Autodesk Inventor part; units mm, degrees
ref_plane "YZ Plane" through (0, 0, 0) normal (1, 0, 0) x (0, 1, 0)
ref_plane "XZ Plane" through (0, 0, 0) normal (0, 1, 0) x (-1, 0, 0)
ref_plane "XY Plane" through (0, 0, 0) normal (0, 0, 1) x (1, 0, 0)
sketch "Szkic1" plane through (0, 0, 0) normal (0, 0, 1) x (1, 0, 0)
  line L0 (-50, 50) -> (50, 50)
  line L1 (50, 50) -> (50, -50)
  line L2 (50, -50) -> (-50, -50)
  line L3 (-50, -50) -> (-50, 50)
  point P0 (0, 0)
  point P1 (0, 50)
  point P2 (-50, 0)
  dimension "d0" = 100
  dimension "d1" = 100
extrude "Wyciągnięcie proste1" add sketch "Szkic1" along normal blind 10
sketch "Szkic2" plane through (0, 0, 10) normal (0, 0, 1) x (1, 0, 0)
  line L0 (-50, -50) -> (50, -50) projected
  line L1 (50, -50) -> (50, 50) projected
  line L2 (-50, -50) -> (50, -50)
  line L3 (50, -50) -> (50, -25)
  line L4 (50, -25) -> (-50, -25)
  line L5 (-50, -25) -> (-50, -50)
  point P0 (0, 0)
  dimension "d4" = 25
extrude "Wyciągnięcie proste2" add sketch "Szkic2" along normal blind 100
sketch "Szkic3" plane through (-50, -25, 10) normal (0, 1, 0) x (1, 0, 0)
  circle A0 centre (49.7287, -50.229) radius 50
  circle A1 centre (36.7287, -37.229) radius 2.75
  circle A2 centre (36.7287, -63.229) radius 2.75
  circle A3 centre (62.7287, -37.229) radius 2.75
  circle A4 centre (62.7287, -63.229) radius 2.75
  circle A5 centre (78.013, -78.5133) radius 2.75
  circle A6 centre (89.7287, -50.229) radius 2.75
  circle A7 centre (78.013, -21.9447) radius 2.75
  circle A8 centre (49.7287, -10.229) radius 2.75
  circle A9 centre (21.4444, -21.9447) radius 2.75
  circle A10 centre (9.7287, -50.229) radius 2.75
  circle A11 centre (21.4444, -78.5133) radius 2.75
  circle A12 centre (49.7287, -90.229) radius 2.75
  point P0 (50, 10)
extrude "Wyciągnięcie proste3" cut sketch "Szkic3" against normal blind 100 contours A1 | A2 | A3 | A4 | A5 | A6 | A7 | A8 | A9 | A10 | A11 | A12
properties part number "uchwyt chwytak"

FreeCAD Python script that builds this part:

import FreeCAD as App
import Part
import Sketcher
Q = App.Units.Quantity

doc = App.newDocument("Part")
params = doc.addObject("Spreadsheet::Sheet", "Params")
for row, (alias, value) in enumerate([
    ("sketch1_width", "100 mm"),
    ("pad1_length", "10 mm"),
    ("sketch2_height", "25 mm"),
    ("sketch2_width", "100 mm"),
    ("pad2_length", "100 mm"),
    ("sketch3_diameter", "5.5 mm"),
    ("pocket1_length", "100 mm"),
], start=1):
    params.set(f"A{row}", alias)
    params.set(f"B{row}", "=" + value)
    params.setAlias(f"B{row}", alias)

body = doc.addObject("PartDesign::Body", "Body")

# Sketch on XY plane
sketch1 = body.newObject("Sketcher::SketchObject", "Sketch")
sketch1.AttachmentSupport = (doc.getObject("XY_Plane"), [""])
sketch1.MapMode = "FlatFace"
sketch1.addGeometry([
    Part.LineSegment(App.Vector(50, 50, 0), App.Vector(-50, 50, 0)),
    Part.LineSegment(App.Vector(-50, 50, 0), App.Vector(-50, -50, 0)),
    Part.LineSegment(App.Vector(-50, -50, 0), App.Vector(50, -50, 0)),
    Part.LineSegment(App.Vector(50, -50, 0), App.Vector(50, 50, 0)),
], False)
sketch1.addConstraint([
    Sketcher.Constraint("Coincident", 0, 2, 1, 1),
    Sketcher.Constraint("Coincident", 1, 2, 2, 1),
    Sketcher.Constraint("Coincident", 2, 2, 3, 1),
    Sketcher.Constraint("Coincident", 3, 2, 0, 1),
    Sketcher.Constraint("Horizontal", 0),
    Sketcher.Constraint("Vertical", 1),
    Sketcher.Constraint("Horizontal", 2),
    Sketcher.Constraint("Vertical", 3),
    Sketcher.Constraint("Symmetric", 0, 2, 2, 2, -1, 1),
    Sketcher.Constraint("Equal", 2, 1),
    Sketcher.Constraint("DistanceX", 0, 2, 0, 1, Q("100 mm")),
])
sketch1.setExpression("Constraints[10]", "Params.sketch1_width")
pad1 = body.newObject("PartDesign::Pad", "Pad")
pad1.Profile = sketch1
pad1.setExpression("Length", "Params.pad1_length")

# Sketch on XY plane
sketch2 = body.newObject("Sketcher::SketchObject", "Sketch001")
sketch2.AttachmentSupport = (doc.getObject("XY_Plane"), [""])
sketch2.MapMode = "FlatFace"
sketch2.AttachmentOffset = App.Placement(App.Vector(0, 0, 10), App.Rotation())
sketch2.addGeometry([
    Part.LineSegment(App.Vector(-50, -25, 0), App.Vector(-50, -50, 0)),
    Part.LineSegment(App.Vector(-50, -50, 0), App.Vector(50, -50, 0)),
    Part.LineSegment(App.Vector(50, -50, 0), App.Vector(50, -25, 0)),
    Part.LineSegment(App.Vector(50, -25, 0), App.Vector(-50, -25, 0)),
], False)
sketch2.addConstraint([
    Sketcher.Constraint("Coincident", 0, 2, 1, 1),
    Sketcher.Constraint("Coincident", 1, 2, 2, 1),
    Sketcher.Constraint("Coincident", 2, 2, 3, 1),
    Sketcher.Constraint("Coincident", 3, 2, 0, 1),
    Sketcher.Constraint("Vertical", 0),
    Sketcher.Constraint("Horizontal", 1),
    Sketcher.Constraint("Vertical", 2),
    Sketcher.Constraint("Horizontal", 3),
    Sketcher.Constraint("DistanceY", 0, 2, 0, 1, Q("25 mm")),
    Sketcher.Constraint("DistanceY", 2, 2, -1, 1, Q("25 mm")),
    Sketcher.Constraint("DistanceX", 1, 1, 1, 2, Q("100 mm")),
    Sketcher.Constraint("DistanceX", 0, 2, -1, 1, Q("50 mm")),
])
sketch2.setExpression("Constraints[8]", "Params.sketch2_height")
sketch2.setExpression("Constraints[10]", "Params.sketch2_width")
pad2 = body.newObject("PartDesign::Pad", "Pad001")
pad2.Profile = sketch2
pad2.setExpression("Length", "Params.pad2_length")

# Sketch on XZ plane
sketch3 = body.newObject("Sketcher::SketchObject", "Sketch002")
sketch3.AttachmentSupport = (doc.getObject("XZ_Plane"), [""])
sketch3.MapMode = "FlatFace"
sketch3.AttachmentOffset = App.Placement(App.Vector(0, 0, 25), App.Rotation())
sketch3.addGeometry([
    Part.Circle(App.Vector(-13.2713, 47.229, 0), App.Vector(0, 0, 1), 2.75),  # 0
    Part.Circle(App.Vector(-13.2713, 73.229, 0), App.Vector(0, 0, 1), 2.75),  # 1
    Part.Circle(App.Vector(12.7287, 47.229, 0), App.Vector(0, 0, 1), 2.75),  # 2
    Part.Circle(App.Vector(12.7287, 73.229, 0), App.Vector(0, 0, 1), 2.75),  # 3
    Part.Circle(App.Vector(28.013, 88.5133, 0), App.Vector(0, 0, 1), 2.75),  # 4
    Part.Circle(App.Vector(39.7287, 60.229, 0), App.Vector(0, 0, 1), 2.75),  # 5
    Part.Circle(App.Vector(28.013, 31.9447, 0), App.Vector(0, 0, 1), 2.75),  # 6
    Part.Circle(App.Vector(-0.2713, 20.229, 0), App.Vector(0, 0, 1), 2.75),  # 7
    Part.Circle(App.Vector(-28.5556, 31.9447, 0), App.Vector(0, 0, 1), 2.75),  # 8
    Part.Circle(App.Vector(-40.2713, 60.229, 0), App.Vector(0, 0, 1), 2.75),  # 9
    Part.Circle(App.Vector(-28.5556, 88.5133, 0), App.Vector(0, 0, 1), 2.75),  # 10
    Part.Circle(App.Vector(-0.2713, 100.229, 0), App.Vector(0, 0, 1), 2.75),  # 11
], False)
sketch3.addConstraint([
    Sketcher.Constraint("Equal", 0, 1),
    Sketcher.Constraint("Equal", 1, 2),
    Sketcher.Constraint("Equal", 2, 3),
    Sketcher.Constraint("Equal", 3, 4),
    Sketcher.Constraint("Equal", 4, 5),
    Sketcher.Constraint("Equal", 5, 6),
    Sketcher.Constraint("Equal", 6, 7),
    Sketcher.Constraint("Equal", 7, 8),
    Sketcher.Constraint("Equal", 8, 9),
    Sketcher.Constraint("Equal", 9, 10),
    Sketcher.Constraint("Equal", 10, 11),
    Sketcher.Constraint("Horizontal", 0, 3, 2, 3),
    Sketcher.Constraint("Horizontal", 1, 3, 3, 3),
    Sketcher.Constraint("Horizontal", 6, 3, 8, 3),
    Sketcher.Constraint("Horizontal", 5, 3, 9, 3),
    Sketcher.Constraint("Horizontal", 4, 3, 10, 3),
    Sketcher.Constraint("Vertical", 0, 3, 1, 3),
    Sketcher.Constraint("Vertical", 2, 3, 3, 3),
    Sketcher.Constraint("Vertical", 4, 3, 6, 3),
    Sketcher.Constraint("Vertical", 8, 3, 10, 3),
    Sketcher.Constraint("Vertical", 7, 3, 11, 3),
    Sketcher.Constraint("Diameter", 0, Q("5.5 mm")),
    Sketcher.Constraint("DistanceY", 0, 3, 1, 3, Q("26 mm")),
    Sketcher.Constraint("DistanceX", 0, 3, 2, 3, Q("26 mm")),
    Sketcher.Constraint("DistanceX", 2, 3, 5, 3, Q("27 mm")),
    Sketcher.Constraint("DistanceY", 2, 3, 5, 3, Q("13 mm")),
    Sketcher.Constraint("DistanceX", 0, 3, 7, 3, Q("13 mm")),
    Sketcher.Constraint("DistanceY", 7, 3, 0, 3, Q("27 mm")),
    Sketcher.Constraint("DistanceX", 9, 3, 0, 3, Q("27 mm")),
    Sketcher.Constraint("DistanceY", 1, 3, 11, 3, Q("27 mm")),
    Sketcher.Constraint("DistanceY", -1, 1, 0, 3, Q("47.229 mm")),
    Sketcher.Constraint("DistanceX", -1, 1, 4, 3, Q("28.013 mm")),
    Sketcher.Constraint("DistanceX", 0, 3, -1, 1, Q("13.2713 mm")),
    Sketcher.Constraint("DistanceY", -1, 1, 4, 3, Q("88.5133 mm")),
    Sketcher.Constraint("DistanceY", -1, 1, 6, 3, Q("31.9447 mm")),
    Sketcher.Constraint("DistanceX", 8, 3, -1, 1, Q("28.5556 mm")),
])
sketch3.setExpression("Constraints[21]", "Params.sketch3_diameter")
pocket1 = body.newObject("PartDesign::Pocket", "Pocket")
pocket1.Profile = sketch3
pocket1.setExpression("Length", "Params.pocket1_length")
pocket1.Reversed = True

doc.recompute()
